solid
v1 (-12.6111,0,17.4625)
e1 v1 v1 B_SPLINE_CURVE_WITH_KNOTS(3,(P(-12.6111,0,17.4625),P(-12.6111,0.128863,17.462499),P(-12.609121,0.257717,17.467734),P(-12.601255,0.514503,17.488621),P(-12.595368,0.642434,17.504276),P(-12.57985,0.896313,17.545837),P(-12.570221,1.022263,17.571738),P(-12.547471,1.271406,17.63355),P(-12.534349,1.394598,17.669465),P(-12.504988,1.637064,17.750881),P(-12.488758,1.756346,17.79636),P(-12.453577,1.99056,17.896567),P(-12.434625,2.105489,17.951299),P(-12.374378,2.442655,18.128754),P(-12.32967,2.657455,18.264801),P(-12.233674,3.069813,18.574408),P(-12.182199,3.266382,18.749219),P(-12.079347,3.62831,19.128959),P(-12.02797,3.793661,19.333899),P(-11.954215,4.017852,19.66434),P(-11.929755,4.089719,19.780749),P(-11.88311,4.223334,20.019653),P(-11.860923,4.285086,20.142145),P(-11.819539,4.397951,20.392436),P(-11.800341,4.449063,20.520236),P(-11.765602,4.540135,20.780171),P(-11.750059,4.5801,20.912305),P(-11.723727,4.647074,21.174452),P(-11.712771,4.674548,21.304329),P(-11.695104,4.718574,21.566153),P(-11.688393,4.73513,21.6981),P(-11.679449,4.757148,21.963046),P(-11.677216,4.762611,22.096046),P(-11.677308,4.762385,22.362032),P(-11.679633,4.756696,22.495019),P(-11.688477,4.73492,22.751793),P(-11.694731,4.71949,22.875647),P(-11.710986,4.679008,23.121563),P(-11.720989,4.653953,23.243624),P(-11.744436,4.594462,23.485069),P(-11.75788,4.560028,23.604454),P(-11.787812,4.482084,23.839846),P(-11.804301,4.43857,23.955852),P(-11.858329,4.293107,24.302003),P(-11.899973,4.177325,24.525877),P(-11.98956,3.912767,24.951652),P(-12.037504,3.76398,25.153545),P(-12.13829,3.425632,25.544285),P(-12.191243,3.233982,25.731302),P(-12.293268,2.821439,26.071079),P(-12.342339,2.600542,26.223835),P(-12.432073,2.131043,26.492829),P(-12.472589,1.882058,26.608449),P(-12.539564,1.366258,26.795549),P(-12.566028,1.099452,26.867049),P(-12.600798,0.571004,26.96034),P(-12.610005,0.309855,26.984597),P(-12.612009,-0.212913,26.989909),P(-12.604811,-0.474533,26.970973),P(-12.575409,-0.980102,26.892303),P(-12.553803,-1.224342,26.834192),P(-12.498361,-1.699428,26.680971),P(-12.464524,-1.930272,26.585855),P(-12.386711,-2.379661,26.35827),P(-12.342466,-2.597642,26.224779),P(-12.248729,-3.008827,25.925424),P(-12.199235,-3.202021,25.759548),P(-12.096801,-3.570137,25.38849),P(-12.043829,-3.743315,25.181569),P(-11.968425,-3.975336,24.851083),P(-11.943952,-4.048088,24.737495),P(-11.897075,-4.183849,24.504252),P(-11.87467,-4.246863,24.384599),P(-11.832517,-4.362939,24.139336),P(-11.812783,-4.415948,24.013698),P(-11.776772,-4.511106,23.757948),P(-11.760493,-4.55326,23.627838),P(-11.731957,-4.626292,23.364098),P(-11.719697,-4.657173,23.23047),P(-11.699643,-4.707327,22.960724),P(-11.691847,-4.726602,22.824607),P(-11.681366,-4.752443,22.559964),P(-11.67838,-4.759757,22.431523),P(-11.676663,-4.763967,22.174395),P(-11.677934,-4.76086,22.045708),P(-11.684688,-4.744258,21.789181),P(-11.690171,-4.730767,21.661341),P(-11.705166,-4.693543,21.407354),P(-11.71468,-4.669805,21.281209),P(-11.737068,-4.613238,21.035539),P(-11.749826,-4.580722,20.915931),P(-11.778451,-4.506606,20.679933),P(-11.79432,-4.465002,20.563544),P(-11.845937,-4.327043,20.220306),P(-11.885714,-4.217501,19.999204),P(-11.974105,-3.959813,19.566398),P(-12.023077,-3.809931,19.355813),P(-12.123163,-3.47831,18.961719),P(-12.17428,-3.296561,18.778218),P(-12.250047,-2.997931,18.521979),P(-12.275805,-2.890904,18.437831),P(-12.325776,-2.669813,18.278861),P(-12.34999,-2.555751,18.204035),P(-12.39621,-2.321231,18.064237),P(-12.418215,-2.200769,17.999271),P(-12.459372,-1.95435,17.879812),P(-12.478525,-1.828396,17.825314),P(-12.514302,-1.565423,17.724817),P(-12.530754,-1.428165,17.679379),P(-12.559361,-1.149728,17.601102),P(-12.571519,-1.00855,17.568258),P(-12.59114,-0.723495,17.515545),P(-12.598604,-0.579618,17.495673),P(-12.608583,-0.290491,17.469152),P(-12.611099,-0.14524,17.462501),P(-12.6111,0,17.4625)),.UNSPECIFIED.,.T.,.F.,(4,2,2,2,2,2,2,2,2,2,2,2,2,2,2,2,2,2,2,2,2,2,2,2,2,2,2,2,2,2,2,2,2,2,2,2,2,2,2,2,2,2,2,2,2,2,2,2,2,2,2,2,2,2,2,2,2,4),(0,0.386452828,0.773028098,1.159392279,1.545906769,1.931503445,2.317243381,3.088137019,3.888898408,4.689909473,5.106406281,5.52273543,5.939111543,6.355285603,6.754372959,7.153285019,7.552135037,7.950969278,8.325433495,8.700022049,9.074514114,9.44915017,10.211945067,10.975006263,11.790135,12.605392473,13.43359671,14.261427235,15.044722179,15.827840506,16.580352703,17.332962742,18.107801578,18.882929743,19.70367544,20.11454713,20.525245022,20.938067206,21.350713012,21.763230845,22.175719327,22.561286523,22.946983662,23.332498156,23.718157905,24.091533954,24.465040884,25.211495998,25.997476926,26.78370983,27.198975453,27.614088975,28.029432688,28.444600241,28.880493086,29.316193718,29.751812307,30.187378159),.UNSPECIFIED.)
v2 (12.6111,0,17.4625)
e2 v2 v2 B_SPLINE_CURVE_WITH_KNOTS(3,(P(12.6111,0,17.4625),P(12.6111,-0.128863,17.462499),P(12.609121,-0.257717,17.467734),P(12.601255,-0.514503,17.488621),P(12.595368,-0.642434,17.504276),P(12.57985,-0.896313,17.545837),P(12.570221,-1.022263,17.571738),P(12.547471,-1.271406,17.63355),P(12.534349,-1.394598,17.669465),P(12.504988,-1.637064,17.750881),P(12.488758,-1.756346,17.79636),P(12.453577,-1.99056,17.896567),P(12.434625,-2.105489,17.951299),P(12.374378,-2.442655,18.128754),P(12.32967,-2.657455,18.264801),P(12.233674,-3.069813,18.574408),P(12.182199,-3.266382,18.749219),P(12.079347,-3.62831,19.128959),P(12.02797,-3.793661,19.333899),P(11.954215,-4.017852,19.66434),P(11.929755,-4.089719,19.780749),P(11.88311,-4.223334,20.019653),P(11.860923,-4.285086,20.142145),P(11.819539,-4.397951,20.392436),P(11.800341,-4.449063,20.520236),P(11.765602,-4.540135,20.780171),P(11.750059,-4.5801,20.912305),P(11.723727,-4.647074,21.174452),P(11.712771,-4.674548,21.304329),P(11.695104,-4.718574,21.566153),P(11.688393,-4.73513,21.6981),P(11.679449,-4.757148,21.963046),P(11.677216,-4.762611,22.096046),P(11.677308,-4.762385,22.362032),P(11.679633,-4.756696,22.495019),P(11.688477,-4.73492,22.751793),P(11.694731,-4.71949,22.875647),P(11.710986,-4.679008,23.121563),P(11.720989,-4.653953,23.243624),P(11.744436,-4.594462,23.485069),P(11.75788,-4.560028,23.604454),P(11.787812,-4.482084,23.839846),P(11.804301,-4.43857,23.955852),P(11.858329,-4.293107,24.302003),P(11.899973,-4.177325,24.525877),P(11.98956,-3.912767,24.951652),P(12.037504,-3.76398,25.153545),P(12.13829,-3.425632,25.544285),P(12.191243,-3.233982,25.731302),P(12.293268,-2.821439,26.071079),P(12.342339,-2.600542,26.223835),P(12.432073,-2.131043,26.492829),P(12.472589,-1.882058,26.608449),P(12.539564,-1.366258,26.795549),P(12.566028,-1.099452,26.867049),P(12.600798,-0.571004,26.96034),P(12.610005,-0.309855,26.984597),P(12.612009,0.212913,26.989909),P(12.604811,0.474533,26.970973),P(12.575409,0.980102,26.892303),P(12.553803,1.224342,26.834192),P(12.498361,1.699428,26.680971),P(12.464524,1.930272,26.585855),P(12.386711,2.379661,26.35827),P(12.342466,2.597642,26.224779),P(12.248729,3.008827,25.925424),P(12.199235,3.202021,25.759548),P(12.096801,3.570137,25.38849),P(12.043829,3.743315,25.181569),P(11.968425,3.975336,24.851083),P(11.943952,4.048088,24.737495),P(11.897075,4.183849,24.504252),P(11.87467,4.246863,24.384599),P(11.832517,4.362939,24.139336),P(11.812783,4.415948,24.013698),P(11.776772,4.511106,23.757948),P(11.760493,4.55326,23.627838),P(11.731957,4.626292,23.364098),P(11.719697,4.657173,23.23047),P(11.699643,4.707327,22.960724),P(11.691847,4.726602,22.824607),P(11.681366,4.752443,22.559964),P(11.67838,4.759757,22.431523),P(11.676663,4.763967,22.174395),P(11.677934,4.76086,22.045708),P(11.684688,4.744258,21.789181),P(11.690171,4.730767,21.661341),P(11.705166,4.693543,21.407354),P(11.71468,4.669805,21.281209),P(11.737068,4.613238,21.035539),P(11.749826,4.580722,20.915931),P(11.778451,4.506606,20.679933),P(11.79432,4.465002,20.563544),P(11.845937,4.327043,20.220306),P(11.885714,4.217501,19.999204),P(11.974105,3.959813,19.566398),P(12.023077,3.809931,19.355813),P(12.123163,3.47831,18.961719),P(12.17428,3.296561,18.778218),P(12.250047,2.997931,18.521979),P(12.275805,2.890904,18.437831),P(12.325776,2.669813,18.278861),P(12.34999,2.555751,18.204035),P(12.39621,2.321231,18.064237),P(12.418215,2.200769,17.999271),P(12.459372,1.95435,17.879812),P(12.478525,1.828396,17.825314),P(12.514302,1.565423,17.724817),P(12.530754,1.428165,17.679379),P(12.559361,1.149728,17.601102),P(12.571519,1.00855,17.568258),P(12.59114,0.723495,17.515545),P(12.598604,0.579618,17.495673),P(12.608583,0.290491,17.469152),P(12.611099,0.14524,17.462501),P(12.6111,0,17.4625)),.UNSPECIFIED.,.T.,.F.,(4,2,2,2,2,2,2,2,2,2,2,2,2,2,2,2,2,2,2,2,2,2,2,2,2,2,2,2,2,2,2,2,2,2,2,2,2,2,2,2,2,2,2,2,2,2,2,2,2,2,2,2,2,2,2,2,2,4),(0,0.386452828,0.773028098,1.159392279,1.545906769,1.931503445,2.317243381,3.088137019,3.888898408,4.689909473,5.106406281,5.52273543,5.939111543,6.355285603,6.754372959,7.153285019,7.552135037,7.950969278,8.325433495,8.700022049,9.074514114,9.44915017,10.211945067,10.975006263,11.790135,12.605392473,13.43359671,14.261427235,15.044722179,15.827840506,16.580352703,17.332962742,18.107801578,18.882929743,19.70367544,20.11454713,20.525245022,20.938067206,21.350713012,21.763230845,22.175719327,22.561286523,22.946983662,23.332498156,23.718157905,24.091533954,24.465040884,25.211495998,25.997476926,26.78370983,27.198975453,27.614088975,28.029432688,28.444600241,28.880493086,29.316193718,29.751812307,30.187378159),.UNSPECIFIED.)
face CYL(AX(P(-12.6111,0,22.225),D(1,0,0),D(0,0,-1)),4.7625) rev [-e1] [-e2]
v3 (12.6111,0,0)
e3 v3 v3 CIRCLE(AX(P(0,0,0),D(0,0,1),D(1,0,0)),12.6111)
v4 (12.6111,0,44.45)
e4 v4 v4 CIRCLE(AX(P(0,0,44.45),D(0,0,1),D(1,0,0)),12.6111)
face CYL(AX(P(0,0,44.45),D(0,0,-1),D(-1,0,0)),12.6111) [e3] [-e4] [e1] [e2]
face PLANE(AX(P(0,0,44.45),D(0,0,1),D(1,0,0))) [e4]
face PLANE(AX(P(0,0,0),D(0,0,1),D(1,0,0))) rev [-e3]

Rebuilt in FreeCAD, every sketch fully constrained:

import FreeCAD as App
import Part
import Sketcher
from FreeCAD import Vector
Q = App.Units.Quantity

doc = App.newDocument("Part")
params = doc.addObject("Spreadsheet::Sheet", "Params")
for row, (alias, value) in enumerate([
    ("sketch1_diameter", "0.993 in"),
    ("pad1_length", "1.75 in"),
    ("sketch2_diameter", "0.375 in"),
], start=1):
    params.set(f"A{row}", alias)
    params.set(f"B{row}", "=" + value)
    params.setAlias(f"B{row}", alias)

body = doc.addObject("PartDesign::Body", "Body")

sketch1 = doc.addObject("Sketcher::SketchObject", "Sketch")
body.addObject(sketch1)
sketch1.AttachmentSupport = (doc.XY_Plane, [""])
sketch1.MapMode = "FlatFace"
sketch1.addGeometry(Part.Circle(Vector(0, 0, 0), Vector(0, 0, 1), 13), False)
sketch1.addConstraint(Sketcher.Constraint("Coincident", 0, 3, -1, 1))
sketch1.addConstraint(Sketcher.Constraint("Diameter", 0, Q("0.993 in")))
sketch1.setExpression("Constraints[1]", "Params.sketch1_diameter")
pad1 = doc.addObject("PartDesign::Pad", "Pad")
body.addObject(pad1)
pad1.Profile = sketch1
pad1.setExpression("Length", "Params.pad1_length")

sketch2 = doc.addObject("Sketcher::SketchObject", "Sketch001")
body.addObject(sketch2)
sketch2.AttachmentSupport = (doc.YZ_Plane, [""])
sketch2.MapMode = "FlatFace"
sketch2.addGeometry(Part.Circle(Vector(0, 22.2, 0), Vector(0, 0, 1), 4.8), False)
sketch2.addConstraint(Sketcher.Constraint("PointOnObject", 0, 3, -2))
sketch2.addConstraint(Sketcher.Constraint("Diameter", 0, Q("0.375 in")))
sketch2.addConstraint(Sketcher.Constraint("DistanceY", -1, 1, 0, 3, Q("0.875 in")))
sketch2.setExpression("Constraints[1]", "Params.sketch2_diameter")
pocket1 = doc.addObject("PartDesign::Pocket", "Pocket")
body.addObject(pocket1)
pocket1.Profile = sketch2
pocket1.Type = "ThroughAll"
pocket1.Midplane = True

doc.recompute()
